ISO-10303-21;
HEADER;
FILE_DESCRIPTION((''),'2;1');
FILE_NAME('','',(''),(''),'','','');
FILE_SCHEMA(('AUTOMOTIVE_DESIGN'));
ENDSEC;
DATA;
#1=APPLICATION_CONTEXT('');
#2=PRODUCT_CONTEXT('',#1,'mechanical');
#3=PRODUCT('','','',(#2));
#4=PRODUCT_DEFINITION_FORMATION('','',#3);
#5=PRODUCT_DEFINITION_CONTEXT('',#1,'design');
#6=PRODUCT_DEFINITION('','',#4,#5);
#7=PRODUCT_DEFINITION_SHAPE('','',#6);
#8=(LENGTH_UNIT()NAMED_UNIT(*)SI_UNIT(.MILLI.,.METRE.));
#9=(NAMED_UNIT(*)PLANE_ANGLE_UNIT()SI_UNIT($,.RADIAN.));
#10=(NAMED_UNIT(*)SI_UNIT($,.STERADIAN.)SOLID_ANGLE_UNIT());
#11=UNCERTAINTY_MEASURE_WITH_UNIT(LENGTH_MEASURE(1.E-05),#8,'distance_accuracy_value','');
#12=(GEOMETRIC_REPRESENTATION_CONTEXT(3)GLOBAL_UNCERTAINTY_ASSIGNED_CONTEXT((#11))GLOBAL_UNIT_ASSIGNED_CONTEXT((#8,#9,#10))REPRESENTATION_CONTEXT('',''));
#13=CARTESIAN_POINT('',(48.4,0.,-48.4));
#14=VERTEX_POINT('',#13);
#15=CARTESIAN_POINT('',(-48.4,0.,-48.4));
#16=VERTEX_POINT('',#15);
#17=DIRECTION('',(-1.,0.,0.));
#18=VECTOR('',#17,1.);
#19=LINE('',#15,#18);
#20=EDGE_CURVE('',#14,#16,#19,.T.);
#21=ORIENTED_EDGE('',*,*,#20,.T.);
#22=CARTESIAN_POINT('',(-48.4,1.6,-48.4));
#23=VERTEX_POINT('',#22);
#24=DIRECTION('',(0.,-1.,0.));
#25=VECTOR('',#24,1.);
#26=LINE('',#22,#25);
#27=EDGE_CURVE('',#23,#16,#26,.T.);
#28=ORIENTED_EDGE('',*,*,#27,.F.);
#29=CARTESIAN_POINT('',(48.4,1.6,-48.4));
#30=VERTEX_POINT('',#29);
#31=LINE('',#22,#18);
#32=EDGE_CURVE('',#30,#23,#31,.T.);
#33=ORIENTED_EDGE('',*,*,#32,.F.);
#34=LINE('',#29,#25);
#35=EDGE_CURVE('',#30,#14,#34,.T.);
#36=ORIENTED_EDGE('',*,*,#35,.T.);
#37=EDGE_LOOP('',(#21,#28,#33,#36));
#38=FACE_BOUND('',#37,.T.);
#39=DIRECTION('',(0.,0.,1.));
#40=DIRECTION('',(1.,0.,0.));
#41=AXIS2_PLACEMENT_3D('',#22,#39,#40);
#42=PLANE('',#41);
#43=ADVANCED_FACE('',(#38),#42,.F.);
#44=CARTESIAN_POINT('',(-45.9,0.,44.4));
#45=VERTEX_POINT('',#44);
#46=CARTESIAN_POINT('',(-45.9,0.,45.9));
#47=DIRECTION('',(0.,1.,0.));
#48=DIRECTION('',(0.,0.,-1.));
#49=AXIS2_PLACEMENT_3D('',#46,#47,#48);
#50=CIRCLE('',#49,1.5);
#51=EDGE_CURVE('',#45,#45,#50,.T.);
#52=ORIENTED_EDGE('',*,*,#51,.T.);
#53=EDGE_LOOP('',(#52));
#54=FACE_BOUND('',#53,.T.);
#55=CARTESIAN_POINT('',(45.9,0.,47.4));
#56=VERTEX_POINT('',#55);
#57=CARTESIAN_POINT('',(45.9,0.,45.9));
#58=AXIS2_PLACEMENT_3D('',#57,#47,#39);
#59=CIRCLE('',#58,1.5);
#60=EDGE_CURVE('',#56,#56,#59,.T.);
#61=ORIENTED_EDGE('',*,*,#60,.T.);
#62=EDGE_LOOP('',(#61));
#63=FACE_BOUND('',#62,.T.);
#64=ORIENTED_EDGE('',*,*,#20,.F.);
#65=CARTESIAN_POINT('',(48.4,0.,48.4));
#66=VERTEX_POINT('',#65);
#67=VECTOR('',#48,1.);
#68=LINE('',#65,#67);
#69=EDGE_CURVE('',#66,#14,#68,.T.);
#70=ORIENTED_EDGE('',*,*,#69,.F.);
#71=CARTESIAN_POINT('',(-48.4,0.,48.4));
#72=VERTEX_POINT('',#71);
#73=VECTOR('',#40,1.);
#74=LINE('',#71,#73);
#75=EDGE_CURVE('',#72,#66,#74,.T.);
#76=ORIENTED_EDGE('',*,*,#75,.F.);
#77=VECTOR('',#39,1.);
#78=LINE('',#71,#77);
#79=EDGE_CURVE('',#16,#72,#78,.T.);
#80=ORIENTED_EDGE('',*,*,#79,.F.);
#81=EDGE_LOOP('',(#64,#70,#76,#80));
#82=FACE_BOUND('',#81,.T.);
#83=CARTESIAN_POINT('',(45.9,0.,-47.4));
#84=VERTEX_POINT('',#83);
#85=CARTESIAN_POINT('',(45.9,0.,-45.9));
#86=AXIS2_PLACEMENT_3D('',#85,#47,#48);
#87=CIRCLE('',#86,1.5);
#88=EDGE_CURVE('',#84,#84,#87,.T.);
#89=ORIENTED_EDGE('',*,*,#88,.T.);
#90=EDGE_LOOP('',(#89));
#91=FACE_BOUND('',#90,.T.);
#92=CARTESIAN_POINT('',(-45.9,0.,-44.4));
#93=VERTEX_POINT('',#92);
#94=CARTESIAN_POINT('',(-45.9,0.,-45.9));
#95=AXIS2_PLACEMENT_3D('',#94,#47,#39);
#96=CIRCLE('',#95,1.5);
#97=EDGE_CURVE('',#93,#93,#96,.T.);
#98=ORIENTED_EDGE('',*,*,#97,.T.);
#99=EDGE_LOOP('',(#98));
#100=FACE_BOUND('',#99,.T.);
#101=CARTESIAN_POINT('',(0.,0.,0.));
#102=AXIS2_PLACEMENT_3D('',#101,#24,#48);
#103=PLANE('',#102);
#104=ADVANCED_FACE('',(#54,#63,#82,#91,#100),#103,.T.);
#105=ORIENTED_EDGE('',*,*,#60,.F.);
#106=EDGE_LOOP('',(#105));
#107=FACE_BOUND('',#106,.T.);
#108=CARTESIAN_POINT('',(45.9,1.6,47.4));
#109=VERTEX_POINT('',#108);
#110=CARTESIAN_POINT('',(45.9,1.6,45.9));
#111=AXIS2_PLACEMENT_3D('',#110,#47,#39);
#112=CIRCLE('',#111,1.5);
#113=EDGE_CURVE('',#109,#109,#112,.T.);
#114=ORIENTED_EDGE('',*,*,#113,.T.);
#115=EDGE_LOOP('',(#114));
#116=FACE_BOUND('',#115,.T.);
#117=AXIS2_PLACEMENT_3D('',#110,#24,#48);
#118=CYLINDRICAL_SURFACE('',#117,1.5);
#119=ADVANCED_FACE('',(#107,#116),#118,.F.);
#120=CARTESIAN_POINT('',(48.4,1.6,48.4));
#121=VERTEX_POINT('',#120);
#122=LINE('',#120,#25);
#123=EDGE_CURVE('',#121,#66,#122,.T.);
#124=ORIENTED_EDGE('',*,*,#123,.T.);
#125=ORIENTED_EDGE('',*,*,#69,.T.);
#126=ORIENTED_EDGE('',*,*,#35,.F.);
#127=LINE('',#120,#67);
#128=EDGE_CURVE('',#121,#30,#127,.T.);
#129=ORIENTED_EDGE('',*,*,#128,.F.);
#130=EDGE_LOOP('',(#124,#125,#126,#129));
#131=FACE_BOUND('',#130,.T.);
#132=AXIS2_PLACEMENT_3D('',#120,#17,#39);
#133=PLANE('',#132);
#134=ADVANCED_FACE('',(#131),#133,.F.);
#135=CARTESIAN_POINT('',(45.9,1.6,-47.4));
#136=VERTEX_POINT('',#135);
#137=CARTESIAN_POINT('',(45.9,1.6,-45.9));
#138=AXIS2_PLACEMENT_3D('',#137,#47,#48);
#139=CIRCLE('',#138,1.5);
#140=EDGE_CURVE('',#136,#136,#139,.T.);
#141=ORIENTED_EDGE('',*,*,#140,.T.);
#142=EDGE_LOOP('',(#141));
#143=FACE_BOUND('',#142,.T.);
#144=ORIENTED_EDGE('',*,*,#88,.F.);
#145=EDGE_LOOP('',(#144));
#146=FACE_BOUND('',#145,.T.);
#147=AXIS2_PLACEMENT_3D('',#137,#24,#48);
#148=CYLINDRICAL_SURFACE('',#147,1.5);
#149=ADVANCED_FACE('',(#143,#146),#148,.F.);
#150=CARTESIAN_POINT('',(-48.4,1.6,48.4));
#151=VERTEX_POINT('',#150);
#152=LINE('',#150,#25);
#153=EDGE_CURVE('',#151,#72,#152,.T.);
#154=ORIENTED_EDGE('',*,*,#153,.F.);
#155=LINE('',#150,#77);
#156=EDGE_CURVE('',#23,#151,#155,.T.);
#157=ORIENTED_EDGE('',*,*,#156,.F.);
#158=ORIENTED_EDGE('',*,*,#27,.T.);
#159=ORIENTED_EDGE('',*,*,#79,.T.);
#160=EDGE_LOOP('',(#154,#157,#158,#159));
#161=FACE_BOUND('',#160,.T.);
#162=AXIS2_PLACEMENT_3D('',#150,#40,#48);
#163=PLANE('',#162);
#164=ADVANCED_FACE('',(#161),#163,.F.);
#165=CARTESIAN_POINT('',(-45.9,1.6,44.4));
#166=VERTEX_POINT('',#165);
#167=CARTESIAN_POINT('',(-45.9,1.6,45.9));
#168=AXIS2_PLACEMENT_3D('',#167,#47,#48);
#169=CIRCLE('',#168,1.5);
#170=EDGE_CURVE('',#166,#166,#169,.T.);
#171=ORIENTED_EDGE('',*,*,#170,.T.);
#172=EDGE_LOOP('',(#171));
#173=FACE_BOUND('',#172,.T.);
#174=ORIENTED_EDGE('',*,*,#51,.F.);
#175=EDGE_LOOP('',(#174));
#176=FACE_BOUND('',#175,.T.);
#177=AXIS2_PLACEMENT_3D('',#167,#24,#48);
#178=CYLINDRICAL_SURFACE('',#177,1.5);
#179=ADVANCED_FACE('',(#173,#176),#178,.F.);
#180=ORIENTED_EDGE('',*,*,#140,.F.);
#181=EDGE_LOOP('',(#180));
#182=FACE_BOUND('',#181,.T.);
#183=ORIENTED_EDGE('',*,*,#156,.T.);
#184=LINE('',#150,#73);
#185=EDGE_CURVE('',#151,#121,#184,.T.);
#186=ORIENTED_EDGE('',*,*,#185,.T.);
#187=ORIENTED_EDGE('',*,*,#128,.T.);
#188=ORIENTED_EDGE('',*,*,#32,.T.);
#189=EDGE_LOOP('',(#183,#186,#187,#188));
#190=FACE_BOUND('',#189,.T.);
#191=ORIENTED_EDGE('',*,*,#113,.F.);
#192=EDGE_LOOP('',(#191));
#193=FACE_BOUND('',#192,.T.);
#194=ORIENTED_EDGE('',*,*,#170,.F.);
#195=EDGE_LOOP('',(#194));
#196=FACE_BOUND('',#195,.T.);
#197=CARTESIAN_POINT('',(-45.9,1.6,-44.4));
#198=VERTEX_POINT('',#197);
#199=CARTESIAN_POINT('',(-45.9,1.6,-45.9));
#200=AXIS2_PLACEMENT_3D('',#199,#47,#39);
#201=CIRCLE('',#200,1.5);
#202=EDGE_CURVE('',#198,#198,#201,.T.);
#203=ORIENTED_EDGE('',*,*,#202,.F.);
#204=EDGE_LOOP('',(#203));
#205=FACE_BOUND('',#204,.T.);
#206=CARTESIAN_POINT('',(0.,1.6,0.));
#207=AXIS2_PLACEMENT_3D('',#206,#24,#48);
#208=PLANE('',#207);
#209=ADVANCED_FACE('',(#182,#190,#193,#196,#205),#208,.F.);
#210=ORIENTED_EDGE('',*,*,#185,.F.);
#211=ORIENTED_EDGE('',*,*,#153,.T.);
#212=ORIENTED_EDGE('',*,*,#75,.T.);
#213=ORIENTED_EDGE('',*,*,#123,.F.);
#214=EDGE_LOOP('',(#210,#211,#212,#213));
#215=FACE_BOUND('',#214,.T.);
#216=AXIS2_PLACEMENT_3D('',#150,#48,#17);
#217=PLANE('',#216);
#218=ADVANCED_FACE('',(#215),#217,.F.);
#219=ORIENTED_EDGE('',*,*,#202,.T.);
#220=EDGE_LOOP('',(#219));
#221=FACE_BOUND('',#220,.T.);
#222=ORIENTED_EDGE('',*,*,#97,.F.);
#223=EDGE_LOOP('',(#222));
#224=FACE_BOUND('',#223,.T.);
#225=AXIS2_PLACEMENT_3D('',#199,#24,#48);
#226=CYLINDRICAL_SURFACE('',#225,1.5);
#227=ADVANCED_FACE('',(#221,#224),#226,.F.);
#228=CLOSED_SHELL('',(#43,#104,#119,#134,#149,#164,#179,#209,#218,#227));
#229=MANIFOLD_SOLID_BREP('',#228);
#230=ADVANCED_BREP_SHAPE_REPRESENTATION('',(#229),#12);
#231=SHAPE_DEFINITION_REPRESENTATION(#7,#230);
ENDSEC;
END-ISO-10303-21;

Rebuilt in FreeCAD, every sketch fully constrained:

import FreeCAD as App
import Part
import Sketcher
from FreeCAD import Vector
Q = App.Units.Quantity

doc = App.newDocument("Part")
params = doc.addObject("Spreadsheet::Sheet", "Params")
for row, (alias, value) in enumerate([
    ("sketch1_diameter", "3 mm"),
    ("sketch1_width", "96.8 mm"),
    ("pad1_length", "1.6 mm"),
], start=1):
    params.set(f"A{row}", alias)
    params.set(f"B{row}", "=" + value)
    params.setAlias(f"B{row}", alias)

body = doc.addObject("PartDesign::Body", "Body")

sketch1 = body.newObject("Sketcher::SketchObject", "Sketch")
sketch1.AttachmentSupport = (doc.getObject("XZ_Plane"), [""])
sketch1.MapMode = "FlatFace"
sketch1.addGeometry([
    Part.LineSegment(Vector(-48.4, -48.4, 0), Vector(-48.4, 48.4, 0)),
    Part.LineSegment(Vector(-48.4, 48.4, 0), Vector(48.4, 48.4, 0)),
    Part.LineSegment(Vector(48.4, 48.4, 0), Vector(48.4, -48.4, 0)),
    Part.LineSegment(Vector(48.4, -48.4, 0), Vector(-48.4, -48.4, 0)),
    Part.Circle(Vector(-45.9, 45.9, 0), Vector(0, 0, 1), 1.5),
    Part.Circle(Vector(45.9, 45.9, 0), Vector(0, 0, 1), 1.5),
    Part.Circle(Vector(-45.9, -45.9, 0), Vector(0, 0, 1), 1.5),
    Part.Circle(Vector(45.9, -45.9, 0), Vector(0, 0, 1), 1.5),
], False)
sketch1.addConstraint([
    Sketcher.Constraint("Coincident", 0, 2, 1, 1),
    Sketcher.Constraint("Coincident", 1, 2, 2, 1),
    Sketcher.Constraint("Coincident", 2, 2, 3, 1),
    Sketcher.Constraint("Coincident", 3, 2, 0, 1),
    Sketcher.Constraint("Vertical", 0),
    Sketcher.Constraint("Horizontal", 1),
    Sketcher.Constraint("Vertical", 2),
    Sketcher.Constraint("Horizontal", 3),
    Sketcher.Constraint("Equal", 4, 5),
    Sketcher.Constraint("Equal", 5, 6),
    Sketcher.Constraint("Equal", 6, 7),
    Sketcher.Constraint("Symmetric", 5, 3, 6, 3, -1, 1),
    Sketcher.Constraint("Symmetric", 4, 3, 7, 3, -1, 1),
    Sketcher.Constraint("Symmetric", 0, 2, 2, 2, -1, 1),
    Sketcher.Constraint("Symmetric", 4, 3, 5, 3, -2),
    Sketcher.Constraint("Equal", 3, 0),
    Sketcher.Constraint("Diameter", 4, Q("3 mm")),
    Sketcher.Constraint("DistanceX", 1, 1, 1, 2, Q("96.8 mm")),
    Sketcher.Constraint("DistanceX", 4, 3, -1, 1, Q("45.9 mm")),
    Sketcher.Constraint("DistanceY", -1, 1, 4, 3, Q("45.9 mm")),
])
sketch1.setExpression("Constraints[16]", "Params.sketch1_diameter")
sketch1.setExpression("Constraints[17]", "Params.sketch1_width")
pad1 = body.newObject("PartDesign::Pad", "Pad")
pad1.Profile = sketch1
pad1.setExpression("Length", "Params.pad1_length")
pad1.Reversed = True

doc.recompute()
